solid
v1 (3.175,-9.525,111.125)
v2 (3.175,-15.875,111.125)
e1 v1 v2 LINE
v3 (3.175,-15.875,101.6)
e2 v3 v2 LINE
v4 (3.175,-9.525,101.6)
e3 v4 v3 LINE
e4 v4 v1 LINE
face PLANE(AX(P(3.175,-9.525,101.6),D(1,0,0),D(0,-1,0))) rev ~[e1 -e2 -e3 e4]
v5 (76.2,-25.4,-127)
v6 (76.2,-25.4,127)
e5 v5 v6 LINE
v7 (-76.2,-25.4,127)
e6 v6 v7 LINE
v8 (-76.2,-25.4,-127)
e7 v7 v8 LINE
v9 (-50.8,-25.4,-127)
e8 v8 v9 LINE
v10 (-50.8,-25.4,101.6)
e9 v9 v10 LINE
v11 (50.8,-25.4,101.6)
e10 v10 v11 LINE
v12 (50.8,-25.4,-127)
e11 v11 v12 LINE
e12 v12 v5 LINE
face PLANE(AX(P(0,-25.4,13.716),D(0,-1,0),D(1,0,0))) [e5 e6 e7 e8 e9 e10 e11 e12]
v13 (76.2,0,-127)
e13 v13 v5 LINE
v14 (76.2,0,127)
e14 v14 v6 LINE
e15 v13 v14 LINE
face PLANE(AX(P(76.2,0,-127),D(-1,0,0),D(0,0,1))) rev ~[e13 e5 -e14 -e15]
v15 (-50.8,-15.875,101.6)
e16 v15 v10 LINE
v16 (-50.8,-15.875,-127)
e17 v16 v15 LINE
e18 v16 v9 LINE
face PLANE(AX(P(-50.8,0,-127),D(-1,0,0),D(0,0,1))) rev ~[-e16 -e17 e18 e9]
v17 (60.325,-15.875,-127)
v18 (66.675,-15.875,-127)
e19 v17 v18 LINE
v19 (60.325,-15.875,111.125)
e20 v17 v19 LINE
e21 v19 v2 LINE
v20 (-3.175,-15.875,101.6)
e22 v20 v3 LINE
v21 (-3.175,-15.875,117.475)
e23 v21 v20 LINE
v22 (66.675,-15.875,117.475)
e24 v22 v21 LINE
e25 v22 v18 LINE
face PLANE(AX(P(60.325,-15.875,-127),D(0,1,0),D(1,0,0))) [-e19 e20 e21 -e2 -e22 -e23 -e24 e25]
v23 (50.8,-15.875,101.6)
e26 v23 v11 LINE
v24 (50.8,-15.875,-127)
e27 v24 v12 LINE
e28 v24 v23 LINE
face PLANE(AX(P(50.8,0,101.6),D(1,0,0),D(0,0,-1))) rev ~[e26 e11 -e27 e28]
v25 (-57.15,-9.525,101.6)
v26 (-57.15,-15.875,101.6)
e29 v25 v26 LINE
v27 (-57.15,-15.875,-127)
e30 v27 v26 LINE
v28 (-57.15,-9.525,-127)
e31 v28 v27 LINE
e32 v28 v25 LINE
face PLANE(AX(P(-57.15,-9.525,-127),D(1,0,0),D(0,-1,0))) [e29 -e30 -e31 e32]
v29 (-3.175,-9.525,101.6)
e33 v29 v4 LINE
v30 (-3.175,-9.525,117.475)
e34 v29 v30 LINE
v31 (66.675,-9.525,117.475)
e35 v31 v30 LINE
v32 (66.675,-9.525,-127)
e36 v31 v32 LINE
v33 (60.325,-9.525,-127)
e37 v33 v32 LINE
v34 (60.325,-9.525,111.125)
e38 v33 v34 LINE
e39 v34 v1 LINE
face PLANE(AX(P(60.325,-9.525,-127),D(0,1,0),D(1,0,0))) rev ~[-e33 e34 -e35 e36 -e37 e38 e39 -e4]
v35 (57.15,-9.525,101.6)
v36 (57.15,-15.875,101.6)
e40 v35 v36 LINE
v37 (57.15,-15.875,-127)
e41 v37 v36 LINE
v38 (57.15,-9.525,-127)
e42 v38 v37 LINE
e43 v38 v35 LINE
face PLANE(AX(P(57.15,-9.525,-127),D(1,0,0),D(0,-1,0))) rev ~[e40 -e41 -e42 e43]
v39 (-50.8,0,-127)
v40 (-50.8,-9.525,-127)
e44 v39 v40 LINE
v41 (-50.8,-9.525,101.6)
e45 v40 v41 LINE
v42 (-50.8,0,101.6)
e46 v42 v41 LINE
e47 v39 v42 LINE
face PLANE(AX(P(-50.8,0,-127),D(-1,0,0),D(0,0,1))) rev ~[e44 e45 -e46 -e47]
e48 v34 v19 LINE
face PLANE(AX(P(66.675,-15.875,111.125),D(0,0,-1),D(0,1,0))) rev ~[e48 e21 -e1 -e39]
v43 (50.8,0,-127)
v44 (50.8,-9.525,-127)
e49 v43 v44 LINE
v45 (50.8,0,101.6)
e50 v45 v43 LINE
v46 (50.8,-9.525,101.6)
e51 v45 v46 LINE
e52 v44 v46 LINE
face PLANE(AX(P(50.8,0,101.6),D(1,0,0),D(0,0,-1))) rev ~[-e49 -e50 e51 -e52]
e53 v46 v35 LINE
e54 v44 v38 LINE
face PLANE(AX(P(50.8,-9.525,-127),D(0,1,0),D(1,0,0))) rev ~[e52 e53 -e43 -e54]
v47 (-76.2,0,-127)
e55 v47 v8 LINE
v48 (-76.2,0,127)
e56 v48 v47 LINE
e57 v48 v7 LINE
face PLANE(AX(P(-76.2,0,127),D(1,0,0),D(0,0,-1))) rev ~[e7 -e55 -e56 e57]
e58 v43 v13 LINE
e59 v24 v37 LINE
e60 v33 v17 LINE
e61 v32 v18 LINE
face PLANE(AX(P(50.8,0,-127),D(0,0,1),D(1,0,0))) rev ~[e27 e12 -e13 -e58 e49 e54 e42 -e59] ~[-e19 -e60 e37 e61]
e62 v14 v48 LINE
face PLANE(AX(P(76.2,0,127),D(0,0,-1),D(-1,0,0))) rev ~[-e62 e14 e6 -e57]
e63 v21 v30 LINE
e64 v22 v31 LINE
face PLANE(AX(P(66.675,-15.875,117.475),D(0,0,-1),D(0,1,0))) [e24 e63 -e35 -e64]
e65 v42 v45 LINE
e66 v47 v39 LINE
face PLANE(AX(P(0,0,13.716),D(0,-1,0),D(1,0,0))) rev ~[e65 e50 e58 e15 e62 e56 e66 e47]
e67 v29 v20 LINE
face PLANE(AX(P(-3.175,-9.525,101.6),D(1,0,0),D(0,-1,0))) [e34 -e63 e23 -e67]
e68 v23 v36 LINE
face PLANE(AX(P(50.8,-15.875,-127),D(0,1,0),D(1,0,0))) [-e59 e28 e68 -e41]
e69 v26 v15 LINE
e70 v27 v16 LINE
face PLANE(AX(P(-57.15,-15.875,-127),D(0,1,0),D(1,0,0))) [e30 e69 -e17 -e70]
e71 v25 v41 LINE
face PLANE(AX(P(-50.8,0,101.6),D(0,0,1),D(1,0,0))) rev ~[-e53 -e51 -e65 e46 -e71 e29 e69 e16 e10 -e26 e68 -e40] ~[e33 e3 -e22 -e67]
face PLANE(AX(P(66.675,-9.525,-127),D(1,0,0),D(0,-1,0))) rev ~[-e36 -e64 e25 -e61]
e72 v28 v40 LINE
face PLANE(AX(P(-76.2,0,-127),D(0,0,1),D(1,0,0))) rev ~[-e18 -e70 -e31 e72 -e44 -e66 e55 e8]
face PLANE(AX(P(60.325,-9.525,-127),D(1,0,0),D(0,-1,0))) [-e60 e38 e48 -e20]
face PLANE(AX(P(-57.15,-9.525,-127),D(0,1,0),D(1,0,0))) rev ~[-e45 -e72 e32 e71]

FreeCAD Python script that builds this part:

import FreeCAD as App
import Part
import Sketcher
from FreeCAD import Vector
Q = App.Units.Quantity


def add_polygon(sketch, points):
    """Adds a closed chain of lines whose ends are joined by coincident constraints."""
    first, n = sketch.GeometryCount, len(points)
    for a, b in zip(points, points[1:] + points[:1]):
        sketch.addGeometry(Part.LineSegment(App.Vector(*a, 0), App.Vector(*b, 0)), False)
    for i in range(n):
        sketch.addConstraint(Sketcher.Constraint("Coincident", first + i, 2, first + (i + 1) % n, 1))

doc = App.newDocument("Part")
body = doc.addObject("PartDesign::Body", "Body")

# Sketch on XZ plane
sketch1 = body.newObject("Sketcher::SketchObject", "Sketch")
sketch1.AttachmentSupport = (doc.getObject("XZ_Plane"), [""])
sketch1.MapMode = "FlatFace"
add_polygon(sketch1, [(76, -127), (76, 127), (-76, 127), (-76, -127), (-51, -127), (-51, 102), (51, 102), (51, -127)])  # lines 0-7
sketch1.addConstraint([
    Sketcher.Constraint("Vertical", 0),
    Sketcher.Constraint("Horizontal", 1),
    Sketcher.Constraint("Vertical", 2),
    Sketcher.Constraint("Horizontal", 3),
    Sketcher.Constraint("Vertical", 4),
    Sketcher.Constraint("Horizontal", 5),
    Sketcher.Constraint("Vertical", 6),
    Sketcher.Constraint("Horizontal", 7),
    Sketcher.Constraint("Symmetric", 0, 2, 2, 2, -1, 1),
    Sketcher.Constraint("Symmetric", 3, 2, 6, 2, -2),
    Sketcher.Constraint("DistanceX", 1, 2, 1, 1, Q("6 in")),
    Sketcher.Constraint("DistanceX", 3, 1, 3, 2, Q("1 in")),
    Sketcher.Constraint("DistanceY", 0, 1, 0, 2, Q("10 in")),
    Sketcher.Constraint("DistanceY", 4, 1, 4, 2, Q("9 in")),
])
pad1 = body.newObject("PartDesign::Pad", "Pad")
pad1.Profile = sketch1
pad1.Length = Q("1 in")

# Sketch on XY plane
sketch2 = body.newObject("Sketcher::SketchObject", "Sketch001")
sketch2.AttachmentSupport = (doc.getObject("XY_Plane"), [""])
sketch2.MapMode = "FlatFace"
sketch2.AttachmentOffset = App.Placement(Vector(0, 0, -5 * 25.4), App.Rotation())
add_polygon(sketch2, [(-57, -16), (-57, -10), (-51, -10), (-51, -16)])  # lines 0-3
add_polygon(sketch2, [(51, -16), (51, -10), (57, -10), (57, -16)])  # lines 4-7
sketch2.addConstraint([
    Sketcher.Constraint("Vertical", 0),
    Sketcher.Constraint("Horizontal", 1),
    Sketcher.Constraint("Vertical", 2),
    Sketcher.Constraint("Horizontal", 3),
    Sketcher.Constraint("Vertical", 4),
    Sketcher.Constraint("Horizontal", 5),
    Sketcher.Constraint("Vertical", 6),
    Sketcher.Constraint("Horizontal", 7),
    Sketcher.Constraint("Symmetric", 1, 2, 4, 2, -2),
    Sketcher.Constraint("Symmetric", 3, 2, 6, 2, -2),
    Sketcher.Constraint("Equal", 7, 0),
    Sketcher.Constraint("DistanceX", 1, 2, -1, 1, Q("2 in")),
    Sketcher.Constraint("DistanceX", 1, 1, 1, 2, Q("0.25 in")),
    Sketcher.Constraint("DistanceY", 0, 2, -1, 1, Q("0.375 in")),
])
pocket1 = body.newObject("PartDesign::Pocket", "Pocket")
pocket1.Profile = sketch2
pocket1.Length = Q("9 in")
pocket1.Reversed = True

# Sketch on XY plane
sketch3 = body.newObject("Sketcher::SketchObject", "Sketch002")
sketch3.AttachmentSupport = (doc.getObject("XY_Plane"), [""])
sketch3.MapMode = "FlatFace"
sketch3.AttachmentOffset = App.Placement(Vector(0, 0, 4 * 25.4), App.Rotation())
add_polygon(sketch3, [(-3, -16), (-3, -10), (3, -10), (3, -16)])  # lines 0-3
sketch3.addConstraint([
    Sketcher.Constraint("Vertical", 0),
    Sketcher.Constraint("Horizontal", 1),
    Sketcher.Constraint("Vertical", 2),
    Sketcher.Constraint("Horizontal", 3),
    Sketcher.Constraint("Equal", 3, 0),
    Sketcher.Constraint("DistanceX", 1, 1, 1, 2, Q("0.25 in")),
    Sketcher.Constraint("DistanceX", 0, 2, -1, 1, Q("0.125 in")),
    Sketcher.Constraint("DistanceY", 0, 2, -1, 1, Q("0.375 in")),
])
pocket2 = body.newObject("PartDesign::Pocket", "Pocket001")
pocket2.Profile = sketch3
pocket2.Length = Q("0.375 in")
pocket2.Reversed = True

# Sketch on YZ plane
sketch4 = body.newObject("Sketcher::SketchObject", "Sketch003")
sketch4.AttachmentSupport = (doc.getObject("YZ_Plane"), [""])
sketch4.MapMode = "FlatFace"
sketch4.AttachmentOffset = App.Placement(Vector(0, 0, 2.625 * 25.4), App.Rotation())
add_polygon(sketch4, [(-16, 117), (-16, 111), (-10, 111), (-10, 117)])  # lines 0-3
sketch4.addConstraint([
    Sketcher.Constraint("Vertical", 0),
    Sketcher.Constraint("Horizontal", 1),
    Sketcher.Constraint("Vertical", 2),
    Sketcher.Constraint("Horizontal", 3),
    Sketcher.Constraint("Equal", 3, 0),
    Sketcher.Constraint("DistanceX", 1, 1, 1, 2, Q("0.25 in")),
    Sketcher.Constraint("DistanceX", 0, 2, -1, 1, Q("0.625 in")),
    Sketcher.Constraint("DistanceY", -1, 1, 0, 2, Q("4.375 in")),
])
pocket3 = body.newObject("PartDesign::Pocket", "Pocket002")
pocket3.Profile = sketch4
pocket3.Length = Q("2.75 in")

# Sketch on XY plane
sketch5 = body.newObject("Sketcher::SketchObject", "Sketch004")
sketch5.AttachmentSupport = (doc.getObject("XY_Plane"), [""])
sketch5.MapMode = "FlatFace"
sketch5.AttachmentOffset = App.Placement(Vector(0, 0, -5 * 25.4), App.Rotation())
add_polygon(sketch5, [(60, -16), (60, -10), (67, -10), (67, -16)])  # lines 0-3
sketch5.addConstraint([
    Sketcher.Constraint("Vertical", 0),
    Sketcher.Constraint("Horizontal", 1),
    Sketcher.Constraint("Vertical", 2),
    Sketcher.Constraint("Horizontal", 3),
    Sketcher.Constraint("Equal", 3, 0),
    Sketcher.Constraint("DistanceX", 1, 1, 1, 2, Q("0.25 in")),
    Sketcher.Constraint("DistanceX", -1, 1, 0, 2, Q("2.375 in")),
    Sketcher.Constraint("DistanceY", 0, 2, -1, 1, Q("0.375 in")),
])
pocket4 = body.newObject("PartDesign::Pocket", "Pocket003")
pocket4.Profile = sketch5
pocket4.Length = Q("9.375 in")
pocket4.Reversed = True

doc.recompute()
